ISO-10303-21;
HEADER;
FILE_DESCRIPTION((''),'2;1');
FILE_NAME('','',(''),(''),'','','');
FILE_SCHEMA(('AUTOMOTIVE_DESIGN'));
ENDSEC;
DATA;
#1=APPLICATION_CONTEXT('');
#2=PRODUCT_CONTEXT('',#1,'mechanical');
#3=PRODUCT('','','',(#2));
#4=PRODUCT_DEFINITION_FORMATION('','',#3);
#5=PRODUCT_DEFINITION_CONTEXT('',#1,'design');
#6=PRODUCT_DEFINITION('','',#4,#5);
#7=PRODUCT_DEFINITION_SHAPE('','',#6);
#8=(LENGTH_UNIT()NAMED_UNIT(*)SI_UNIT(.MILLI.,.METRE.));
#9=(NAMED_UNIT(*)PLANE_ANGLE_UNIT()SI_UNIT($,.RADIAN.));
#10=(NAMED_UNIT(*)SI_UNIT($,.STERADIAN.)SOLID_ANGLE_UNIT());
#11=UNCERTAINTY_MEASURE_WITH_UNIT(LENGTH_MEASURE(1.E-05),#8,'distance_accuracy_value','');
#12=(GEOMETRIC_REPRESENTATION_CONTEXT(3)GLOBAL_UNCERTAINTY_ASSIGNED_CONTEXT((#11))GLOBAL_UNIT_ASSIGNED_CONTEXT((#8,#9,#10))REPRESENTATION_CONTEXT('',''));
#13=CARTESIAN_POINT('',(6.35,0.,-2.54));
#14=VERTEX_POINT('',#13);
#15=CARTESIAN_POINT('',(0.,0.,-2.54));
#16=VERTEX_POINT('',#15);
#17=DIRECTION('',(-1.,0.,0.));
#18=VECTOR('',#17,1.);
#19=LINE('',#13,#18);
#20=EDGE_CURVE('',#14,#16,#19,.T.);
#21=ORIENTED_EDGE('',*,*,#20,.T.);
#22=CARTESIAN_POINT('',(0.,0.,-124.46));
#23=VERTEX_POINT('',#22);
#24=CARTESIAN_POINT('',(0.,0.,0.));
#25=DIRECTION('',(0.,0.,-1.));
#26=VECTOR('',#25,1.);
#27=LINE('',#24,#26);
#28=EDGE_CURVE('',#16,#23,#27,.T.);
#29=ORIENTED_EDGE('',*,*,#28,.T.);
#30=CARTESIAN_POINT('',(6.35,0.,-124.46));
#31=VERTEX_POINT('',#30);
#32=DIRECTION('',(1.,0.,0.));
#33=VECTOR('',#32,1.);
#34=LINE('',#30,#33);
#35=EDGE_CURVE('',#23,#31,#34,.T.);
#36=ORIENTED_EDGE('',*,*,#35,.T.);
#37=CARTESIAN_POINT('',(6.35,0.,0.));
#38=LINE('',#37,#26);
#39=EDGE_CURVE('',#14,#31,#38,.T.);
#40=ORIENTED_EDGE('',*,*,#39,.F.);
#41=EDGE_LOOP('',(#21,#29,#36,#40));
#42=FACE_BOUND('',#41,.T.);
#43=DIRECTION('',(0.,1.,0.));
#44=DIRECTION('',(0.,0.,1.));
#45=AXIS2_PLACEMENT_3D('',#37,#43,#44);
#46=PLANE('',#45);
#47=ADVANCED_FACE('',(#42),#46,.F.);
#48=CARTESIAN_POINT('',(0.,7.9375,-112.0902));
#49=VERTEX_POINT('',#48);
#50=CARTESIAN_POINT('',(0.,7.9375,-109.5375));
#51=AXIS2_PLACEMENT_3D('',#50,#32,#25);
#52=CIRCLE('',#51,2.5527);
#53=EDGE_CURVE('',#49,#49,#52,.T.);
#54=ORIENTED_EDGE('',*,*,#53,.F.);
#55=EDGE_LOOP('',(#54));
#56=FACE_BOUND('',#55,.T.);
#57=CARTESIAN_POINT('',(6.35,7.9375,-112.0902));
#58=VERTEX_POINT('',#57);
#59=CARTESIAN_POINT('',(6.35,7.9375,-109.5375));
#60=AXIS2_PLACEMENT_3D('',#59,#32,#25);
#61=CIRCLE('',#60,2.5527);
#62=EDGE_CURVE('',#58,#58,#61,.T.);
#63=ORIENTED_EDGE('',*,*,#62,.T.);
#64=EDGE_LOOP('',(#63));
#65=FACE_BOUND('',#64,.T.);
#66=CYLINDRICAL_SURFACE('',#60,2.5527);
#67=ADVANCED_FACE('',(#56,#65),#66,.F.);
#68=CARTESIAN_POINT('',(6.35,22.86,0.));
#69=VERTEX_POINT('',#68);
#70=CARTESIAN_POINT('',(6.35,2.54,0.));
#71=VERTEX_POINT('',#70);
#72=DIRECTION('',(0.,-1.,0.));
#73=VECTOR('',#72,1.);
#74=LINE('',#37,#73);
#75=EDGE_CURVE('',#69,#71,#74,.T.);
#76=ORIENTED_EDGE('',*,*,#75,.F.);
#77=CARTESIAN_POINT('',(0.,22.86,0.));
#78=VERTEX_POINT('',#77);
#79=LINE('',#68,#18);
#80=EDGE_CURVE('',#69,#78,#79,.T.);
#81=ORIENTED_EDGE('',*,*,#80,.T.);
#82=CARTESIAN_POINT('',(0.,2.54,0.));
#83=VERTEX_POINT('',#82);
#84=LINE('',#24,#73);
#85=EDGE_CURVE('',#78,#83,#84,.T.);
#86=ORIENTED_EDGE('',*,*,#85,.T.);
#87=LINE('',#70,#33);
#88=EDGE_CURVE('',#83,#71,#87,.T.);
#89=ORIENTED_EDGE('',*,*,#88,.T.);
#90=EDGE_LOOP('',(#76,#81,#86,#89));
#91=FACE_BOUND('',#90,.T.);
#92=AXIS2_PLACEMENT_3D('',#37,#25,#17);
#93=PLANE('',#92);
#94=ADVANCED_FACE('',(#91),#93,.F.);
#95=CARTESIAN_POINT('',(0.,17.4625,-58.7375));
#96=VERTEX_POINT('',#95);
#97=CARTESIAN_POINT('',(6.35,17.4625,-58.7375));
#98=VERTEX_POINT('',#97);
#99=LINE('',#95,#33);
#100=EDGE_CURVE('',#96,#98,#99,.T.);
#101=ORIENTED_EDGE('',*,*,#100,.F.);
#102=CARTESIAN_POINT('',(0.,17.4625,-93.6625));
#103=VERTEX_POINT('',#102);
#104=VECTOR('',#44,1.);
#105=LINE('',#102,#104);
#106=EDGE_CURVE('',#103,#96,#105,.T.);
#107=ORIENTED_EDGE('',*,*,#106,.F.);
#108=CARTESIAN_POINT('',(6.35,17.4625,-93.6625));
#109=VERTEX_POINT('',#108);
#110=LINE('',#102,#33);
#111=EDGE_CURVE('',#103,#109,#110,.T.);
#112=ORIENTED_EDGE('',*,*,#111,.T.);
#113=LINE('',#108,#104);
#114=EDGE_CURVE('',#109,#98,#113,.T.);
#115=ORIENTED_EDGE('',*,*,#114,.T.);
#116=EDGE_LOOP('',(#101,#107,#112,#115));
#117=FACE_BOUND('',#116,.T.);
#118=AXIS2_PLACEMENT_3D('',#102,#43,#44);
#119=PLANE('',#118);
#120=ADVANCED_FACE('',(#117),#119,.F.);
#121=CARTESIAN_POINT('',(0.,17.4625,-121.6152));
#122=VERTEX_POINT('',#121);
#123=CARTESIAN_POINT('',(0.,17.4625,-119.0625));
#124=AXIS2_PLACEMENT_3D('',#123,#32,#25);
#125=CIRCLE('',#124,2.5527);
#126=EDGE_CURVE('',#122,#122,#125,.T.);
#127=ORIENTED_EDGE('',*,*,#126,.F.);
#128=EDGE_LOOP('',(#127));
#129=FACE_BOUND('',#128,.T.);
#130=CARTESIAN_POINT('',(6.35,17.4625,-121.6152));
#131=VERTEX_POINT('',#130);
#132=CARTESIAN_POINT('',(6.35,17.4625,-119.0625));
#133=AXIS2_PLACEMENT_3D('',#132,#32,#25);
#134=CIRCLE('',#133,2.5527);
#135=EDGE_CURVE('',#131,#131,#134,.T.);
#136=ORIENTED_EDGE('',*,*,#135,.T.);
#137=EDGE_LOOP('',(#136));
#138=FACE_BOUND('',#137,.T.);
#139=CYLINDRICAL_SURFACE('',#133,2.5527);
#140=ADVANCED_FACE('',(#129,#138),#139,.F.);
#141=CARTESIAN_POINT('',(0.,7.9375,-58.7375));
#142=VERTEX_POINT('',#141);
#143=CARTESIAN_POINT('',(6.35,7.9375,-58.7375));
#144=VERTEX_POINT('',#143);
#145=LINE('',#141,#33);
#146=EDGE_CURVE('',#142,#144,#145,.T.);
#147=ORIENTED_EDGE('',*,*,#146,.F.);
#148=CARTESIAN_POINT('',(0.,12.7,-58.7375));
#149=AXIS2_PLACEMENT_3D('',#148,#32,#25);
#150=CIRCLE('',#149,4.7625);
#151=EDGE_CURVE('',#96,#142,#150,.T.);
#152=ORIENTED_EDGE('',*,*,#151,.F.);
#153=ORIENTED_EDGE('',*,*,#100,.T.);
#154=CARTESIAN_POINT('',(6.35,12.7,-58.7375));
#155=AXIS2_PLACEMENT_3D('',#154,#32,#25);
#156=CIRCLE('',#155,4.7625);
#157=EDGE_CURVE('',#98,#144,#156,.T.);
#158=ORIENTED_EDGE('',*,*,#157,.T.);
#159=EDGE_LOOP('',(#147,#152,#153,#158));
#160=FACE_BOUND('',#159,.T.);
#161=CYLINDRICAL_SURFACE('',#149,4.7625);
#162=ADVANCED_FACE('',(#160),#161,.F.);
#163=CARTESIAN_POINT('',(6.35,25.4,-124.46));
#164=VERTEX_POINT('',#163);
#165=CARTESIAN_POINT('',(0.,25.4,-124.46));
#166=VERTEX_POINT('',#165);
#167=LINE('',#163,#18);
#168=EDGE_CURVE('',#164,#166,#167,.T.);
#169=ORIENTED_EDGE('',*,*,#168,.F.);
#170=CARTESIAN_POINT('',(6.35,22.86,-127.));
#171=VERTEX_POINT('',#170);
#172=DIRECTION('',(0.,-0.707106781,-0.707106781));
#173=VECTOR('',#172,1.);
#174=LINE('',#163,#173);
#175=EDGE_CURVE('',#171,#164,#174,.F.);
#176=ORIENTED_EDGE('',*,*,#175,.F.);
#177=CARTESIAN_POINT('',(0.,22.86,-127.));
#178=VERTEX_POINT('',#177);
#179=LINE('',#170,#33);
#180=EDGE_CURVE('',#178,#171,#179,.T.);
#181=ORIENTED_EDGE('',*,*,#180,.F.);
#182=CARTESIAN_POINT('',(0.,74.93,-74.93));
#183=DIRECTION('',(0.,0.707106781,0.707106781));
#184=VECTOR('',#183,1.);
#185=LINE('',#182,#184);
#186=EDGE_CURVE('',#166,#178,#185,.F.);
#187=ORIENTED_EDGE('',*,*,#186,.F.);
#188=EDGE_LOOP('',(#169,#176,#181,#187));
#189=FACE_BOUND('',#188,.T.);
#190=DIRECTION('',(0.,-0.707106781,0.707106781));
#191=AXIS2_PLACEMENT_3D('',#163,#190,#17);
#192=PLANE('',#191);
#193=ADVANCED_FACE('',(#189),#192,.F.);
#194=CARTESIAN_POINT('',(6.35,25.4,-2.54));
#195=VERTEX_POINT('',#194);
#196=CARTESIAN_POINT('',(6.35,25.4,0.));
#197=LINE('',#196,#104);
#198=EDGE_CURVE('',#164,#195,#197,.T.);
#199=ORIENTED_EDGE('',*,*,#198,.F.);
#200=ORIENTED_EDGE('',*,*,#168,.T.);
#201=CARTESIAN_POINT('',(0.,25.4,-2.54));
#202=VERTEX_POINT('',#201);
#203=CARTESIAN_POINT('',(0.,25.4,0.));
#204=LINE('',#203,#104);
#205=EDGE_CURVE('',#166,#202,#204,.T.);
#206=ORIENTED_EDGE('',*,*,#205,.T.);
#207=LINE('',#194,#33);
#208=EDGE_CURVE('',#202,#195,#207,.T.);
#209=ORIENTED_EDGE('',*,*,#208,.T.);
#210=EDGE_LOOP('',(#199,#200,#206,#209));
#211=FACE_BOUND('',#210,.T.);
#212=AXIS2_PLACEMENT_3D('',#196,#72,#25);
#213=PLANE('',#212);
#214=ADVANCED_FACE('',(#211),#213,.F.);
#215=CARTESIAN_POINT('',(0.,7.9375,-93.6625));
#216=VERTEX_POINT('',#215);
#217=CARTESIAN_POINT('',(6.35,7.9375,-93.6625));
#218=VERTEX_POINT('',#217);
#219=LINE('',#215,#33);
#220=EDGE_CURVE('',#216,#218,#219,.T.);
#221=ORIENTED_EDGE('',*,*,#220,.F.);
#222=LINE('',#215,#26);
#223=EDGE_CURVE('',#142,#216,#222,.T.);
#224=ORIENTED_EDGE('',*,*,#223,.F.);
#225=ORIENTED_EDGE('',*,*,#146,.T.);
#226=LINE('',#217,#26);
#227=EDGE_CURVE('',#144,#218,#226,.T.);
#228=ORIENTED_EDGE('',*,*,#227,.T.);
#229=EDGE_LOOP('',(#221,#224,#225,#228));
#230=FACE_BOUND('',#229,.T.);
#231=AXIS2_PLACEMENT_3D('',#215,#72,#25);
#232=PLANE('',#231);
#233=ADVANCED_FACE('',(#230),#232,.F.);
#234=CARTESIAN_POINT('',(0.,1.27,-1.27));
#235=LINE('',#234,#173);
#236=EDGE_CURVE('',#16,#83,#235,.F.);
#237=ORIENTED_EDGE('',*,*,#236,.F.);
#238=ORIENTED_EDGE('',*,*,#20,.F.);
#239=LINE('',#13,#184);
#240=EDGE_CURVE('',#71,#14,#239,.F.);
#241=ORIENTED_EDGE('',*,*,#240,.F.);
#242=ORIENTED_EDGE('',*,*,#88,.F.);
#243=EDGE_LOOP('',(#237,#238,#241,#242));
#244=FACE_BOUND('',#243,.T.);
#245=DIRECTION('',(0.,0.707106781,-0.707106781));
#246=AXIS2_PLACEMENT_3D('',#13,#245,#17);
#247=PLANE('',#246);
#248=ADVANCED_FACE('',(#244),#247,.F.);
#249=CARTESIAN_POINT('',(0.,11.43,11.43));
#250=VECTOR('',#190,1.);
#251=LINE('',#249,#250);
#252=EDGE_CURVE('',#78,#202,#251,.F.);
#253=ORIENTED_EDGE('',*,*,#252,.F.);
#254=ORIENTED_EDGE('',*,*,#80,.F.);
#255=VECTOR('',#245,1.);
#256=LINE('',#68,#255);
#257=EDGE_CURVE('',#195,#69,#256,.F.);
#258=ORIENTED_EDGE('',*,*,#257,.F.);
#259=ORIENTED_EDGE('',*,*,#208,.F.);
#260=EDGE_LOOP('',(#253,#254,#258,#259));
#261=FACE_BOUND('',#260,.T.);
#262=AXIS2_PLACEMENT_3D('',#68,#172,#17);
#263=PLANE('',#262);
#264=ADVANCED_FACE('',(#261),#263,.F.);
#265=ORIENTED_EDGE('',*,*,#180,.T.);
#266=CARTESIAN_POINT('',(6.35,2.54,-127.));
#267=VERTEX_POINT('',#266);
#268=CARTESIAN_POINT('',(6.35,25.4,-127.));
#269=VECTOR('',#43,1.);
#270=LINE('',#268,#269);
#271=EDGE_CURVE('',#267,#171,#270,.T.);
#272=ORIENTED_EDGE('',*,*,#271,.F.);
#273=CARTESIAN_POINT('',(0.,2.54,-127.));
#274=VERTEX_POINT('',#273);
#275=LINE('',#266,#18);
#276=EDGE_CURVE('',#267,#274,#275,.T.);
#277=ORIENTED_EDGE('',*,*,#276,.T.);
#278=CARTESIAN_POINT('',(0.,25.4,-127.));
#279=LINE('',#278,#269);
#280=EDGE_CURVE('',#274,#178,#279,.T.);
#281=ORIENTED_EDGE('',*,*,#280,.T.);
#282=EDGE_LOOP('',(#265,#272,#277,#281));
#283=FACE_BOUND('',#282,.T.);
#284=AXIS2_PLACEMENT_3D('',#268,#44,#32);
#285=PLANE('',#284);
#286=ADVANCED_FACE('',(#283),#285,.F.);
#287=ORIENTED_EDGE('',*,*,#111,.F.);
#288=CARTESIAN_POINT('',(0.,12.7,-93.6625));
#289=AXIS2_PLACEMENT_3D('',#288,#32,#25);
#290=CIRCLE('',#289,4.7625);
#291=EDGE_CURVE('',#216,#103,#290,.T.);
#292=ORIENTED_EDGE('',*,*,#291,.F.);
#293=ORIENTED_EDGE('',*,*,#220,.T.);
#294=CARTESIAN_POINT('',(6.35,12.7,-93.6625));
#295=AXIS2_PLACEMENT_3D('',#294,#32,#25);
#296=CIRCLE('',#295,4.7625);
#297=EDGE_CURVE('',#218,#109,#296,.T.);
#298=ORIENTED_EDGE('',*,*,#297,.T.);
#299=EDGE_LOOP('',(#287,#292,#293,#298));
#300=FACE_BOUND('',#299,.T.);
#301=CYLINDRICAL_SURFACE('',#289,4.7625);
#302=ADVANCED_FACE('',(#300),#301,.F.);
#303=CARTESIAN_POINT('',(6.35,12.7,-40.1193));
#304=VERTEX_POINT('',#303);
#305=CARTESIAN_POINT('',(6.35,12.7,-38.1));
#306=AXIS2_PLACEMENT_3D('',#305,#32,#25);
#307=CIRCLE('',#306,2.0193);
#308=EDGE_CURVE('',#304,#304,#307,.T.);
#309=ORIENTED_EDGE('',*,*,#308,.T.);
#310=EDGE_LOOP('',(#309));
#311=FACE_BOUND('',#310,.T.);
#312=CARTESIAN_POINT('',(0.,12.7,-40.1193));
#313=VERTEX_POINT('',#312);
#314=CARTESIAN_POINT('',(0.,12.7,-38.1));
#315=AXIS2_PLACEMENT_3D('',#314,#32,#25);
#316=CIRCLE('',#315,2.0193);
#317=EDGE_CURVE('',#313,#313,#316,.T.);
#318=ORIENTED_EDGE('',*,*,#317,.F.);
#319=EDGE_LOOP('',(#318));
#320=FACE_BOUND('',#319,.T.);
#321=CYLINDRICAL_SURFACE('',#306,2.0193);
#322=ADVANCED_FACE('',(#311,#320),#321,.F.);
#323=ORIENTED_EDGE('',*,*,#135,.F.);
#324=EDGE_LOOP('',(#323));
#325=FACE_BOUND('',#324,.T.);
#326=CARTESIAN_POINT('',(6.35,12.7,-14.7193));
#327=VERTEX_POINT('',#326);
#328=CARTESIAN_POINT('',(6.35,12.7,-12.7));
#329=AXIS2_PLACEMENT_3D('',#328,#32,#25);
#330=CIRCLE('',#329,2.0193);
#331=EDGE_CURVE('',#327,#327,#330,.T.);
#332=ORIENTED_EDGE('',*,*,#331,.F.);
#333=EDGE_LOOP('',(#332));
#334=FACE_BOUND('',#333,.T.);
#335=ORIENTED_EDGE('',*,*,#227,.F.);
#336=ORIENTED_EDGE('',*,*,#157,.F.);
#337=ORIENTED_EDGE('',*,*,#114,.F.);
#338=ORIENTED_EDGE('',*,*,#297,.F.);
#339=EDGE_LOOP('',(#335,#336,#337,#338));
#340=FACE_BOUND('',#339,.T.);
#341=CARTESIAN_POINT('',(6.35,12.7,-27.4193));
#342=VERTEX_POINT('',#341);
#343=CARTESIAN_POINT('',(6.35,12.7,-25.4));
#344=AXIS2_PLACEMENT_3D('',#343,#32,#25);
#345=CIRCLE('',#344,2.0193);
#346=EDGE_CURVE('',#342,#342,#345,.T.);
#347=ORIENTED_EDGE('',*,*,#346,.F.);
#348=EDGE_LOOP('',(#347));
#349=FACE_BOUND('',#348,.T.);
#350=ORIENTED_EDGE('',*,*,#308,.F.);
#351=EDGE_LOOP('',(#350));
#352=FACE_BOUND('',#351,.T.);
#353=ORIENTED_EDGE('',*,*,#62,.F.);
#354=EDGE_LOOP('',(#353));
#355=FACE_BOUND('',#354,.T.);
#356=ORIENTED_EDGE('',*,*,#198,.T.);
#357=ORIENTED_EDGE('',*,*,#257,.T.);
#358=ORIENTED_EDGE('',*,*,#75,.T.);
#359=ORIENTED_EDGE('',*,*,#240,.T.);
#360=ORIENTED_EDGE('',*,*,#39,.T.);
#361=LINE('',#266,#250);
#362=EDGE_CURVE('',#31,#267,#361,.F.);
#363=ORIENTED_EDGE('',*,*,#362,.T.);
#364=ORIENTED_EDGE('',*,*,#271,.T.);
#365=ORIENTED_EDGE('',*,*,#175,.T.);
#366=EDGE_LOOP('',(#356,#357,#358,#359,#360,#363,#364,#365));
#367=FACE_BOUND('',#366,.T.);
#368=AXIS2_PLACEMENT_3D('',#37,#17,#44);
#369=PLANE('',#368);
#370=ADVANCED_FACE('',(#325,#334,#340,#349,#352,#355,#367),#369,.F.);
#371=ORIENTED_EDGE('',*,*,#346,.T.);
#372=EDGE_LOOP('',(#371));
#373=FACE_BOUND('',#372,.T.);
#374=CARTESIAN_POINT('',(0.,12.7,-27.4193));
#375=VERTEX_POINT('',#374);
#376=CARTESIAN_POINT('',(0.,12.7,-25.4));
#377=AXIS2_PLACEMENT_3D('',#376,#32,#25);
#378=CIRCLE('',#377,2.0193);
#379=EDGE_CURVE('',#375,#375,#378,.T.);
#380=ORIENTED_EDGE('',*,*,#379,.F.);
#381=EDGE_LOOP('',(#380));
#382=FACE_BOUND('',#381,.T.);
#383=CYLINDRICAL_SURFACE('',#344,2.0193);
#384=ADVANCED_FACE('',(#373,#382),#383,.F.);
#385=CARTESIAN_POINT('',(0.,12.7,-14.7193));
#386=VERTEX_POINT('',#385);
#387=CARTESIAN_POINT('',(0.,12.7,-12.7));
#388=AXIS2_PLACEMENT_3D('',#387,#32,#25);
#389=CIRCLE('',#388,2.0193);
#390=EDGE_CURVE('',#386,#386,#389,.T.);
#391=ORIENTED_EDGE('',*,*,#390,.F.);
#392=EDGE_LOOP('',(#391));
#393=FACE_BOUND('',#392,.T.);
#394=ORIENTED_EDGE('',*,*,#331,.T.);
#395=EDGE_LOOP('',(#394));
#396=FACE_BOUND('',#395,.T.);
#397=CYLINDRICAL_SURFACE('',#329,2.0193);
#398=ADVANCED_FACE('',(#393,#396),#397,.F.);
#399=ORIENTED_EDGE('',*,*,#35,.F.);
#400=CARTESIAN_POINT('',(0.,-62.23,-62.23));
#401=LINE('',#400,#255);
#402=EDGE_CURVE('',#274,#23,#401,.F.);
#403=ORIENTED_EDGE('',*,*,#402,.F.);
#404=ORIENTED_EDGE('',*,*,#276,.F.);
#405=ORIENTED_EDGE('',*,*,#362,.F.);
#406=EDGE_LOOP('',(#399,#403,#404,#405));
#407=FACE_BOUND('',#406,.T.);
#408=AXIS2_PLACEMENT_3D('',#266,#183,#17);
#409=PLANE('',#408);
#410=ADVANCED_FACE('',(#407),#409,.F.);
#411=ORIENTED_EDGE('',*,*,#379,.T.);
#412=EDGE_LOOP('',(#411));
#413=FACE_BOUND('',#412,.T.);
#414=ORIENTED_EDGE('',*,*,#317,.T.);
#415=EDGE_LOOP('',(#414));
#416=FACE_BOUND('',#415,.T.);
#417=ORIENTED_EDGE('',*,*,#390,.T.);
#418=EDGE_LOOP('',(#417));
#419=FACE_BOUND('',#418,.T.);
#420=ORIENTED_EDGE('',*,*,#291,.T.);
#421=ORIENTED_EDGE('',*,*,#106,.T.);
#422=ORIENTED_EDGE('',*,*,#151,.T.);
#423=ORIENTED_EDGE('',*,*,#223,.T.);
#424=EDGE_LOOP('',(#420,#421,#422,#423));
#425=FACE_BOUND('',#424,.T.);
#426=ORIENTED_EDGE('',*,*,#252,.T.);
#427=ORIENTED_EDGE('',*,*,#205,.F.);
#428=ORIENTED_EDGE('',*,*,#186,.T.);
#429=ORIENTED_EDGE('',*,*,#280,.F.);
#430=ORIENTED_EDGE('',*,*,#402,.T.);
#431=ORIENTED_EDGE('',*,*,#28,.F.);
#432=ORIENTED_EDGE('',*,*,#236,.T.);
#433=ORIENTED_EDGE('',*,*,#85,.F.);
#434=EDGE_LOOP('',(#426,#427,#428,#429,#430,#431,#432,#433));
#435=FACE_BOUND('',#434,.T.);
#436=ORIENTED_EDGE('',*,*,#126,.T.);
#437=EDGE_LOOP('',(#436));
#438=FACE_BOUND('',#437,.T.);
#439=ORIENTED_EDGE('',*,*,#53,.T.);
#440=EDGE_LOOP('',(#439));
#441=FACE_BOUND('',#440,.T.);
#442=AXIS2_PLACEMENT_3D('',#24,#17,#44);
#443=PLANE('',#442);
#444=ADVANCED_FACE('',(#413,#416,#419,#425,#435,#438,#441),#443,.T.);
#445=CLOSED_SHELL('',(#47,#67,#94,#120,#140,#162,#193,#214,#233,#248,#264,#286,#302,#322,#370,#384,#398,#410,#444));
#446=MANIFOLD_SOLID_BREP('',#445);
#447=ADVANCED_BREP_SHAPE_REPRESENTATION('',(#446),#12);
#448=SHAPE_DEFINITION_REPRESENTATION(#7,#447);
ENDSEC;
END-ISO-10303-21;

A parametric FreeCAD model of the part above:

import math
import FreeCAD as App
import Part
import Sketcher

V = App.Vector
Q = App.Units.Quantity


def edges_at(feature, points):
    """Names of the edges that pass closest to the given points."""
    edges = feature.Shape.Edges
    near = lambda p: min(range(len(edges)), key=lambda i: edges[i].distToShape(Part.Vertex(*p))[0])
    return sorted({f"Edge{near(p) + 1}" for p in points})

doc = App.newDocument("Part")
body = doc.addObject("PartDesign::Body", "Body")

sketch1 = body.newObject("Sketcher::SketchObject", "Sketch")
sketch1.AttachmentSupport = (doc.getObject("YZ_Plane"), [""])
sketch1.MapMode = "FlatFace"
sketch1.addGeometry([
    Part.LineSegment(V(25.4, 0, 0), V(0, 0, 0)),
    Part.LineSegment(V(0, 0, 0), V(0, -127, 0)),
    Part.LineSegment(V(0, -127, 0), V(25.4, -127, 0)),
    Part.LineSegment(V(25.4, -127, 0), V(25.4, 0, 0)),
], False)
sketch1.addConstraint([
    Sketcher.Constraint("Coincident", 0, 2, 1, 1),
    Sketcher.Constraint("Coincident", 1, 2, 2, 1),
    Sketcher.Constraint("Coincident", 2, 2, 3, 1),
    Sketcher.Constraint("Coincident", 3, 2, 0, 1),
    Sketcher.Constraint("Horizontal", 0),
    Sketcher.Constraint("Vertical", 1),
    Sketcher.Constraint("Horizontal", 2),
    Sketcher.Constraint("Vertical", 3),
    Sketcher.Constraint("Coincident", 0, 2, -1, 1),
    Sketcher.Constraint("DistanceX", 0, 2, 0, 1, Q("1 in")),
    Sketcher.Constraint("DistanceY", 1, 2, 1, 1, Q("5 in")),
])
pad1 = body.newObject("PartDesign::Pad", "Pad")
pad1.Profile = sketch1
pad1.Length = Q("0.25 in")

sketch2 = body.newObject("Sketcher::SketchObject", "Sketch001")
sketch2.AttachmentSupport = (doc.getObject("YZ_Plane"), [""])
sketch2.MapMode = "FlatFace"
sketch2.AttachmentOffset = App.Placement(V(0, 0, 0.25 * 25.4), App.Rotation())
sketch2.addGeometry([
    Part.Circle(V(12.7, -12.7, 0), V(0, 0, 1), 2.0193),
    Part.Circle(V(12.7, -25.4, 0), V(0, 0, 1), 2.0193),
    Part.Circle(V(12.7, -38.1, 0), V(0, 0, 1), 2.0193),
], False)
sketch2.addConstraint([
    Sketcher.Constraint("Equal", 0, 1),
    Sketcher.Constraint("Equal", 1, 2),
    Sketcher.Constraint("Vertical", 0, 3, 1, 3),
    Sketcher.Constraint("Vertical", 1, 3, 2, 3),
    Sketcher.Constraint("Diameter", 0, Q("0.159 in")),
    Sketcher.Constraint("DistanceY", 1, 3, -1, 1, Q("1 in")),
    Sketcher.Constraint("DistanceY", 2, 3, 0, 3, Q("1 in")),
    Sketcher.Constraint("DistanceX", -1, 1, 0, 3, Q("0.5 in")),
    Sketcher.Constraint("DistanceY", 0, 3, -1, 1, Q("0.5 in")),
])
doc.recompute()
hole = body.newObject("PartDesign::Hole", "Hole")
hole.Profile = sketch2
hole.ThreadType = "None"
hole.Diameter = Q("0.159 in")
hole.DepthType = "ThroughAll"

sketch3 = body.newObject("Sketcher::SketchObject", "Sketch002")
sketch3.AttachmentSupport = (doc.getObject("YZ_Plane"), [""])
sketch3.MapMode = "FlatFace"
sketch3.AttachmentOffset = App.Placement(V(0, 0, 0.25 * 25.4), App.Rotation())
sketch3.addGeometry([
    Part.Circle(V(17.4625, -119.0625, 0), V(0, 0, 1), 2.5527),
    Part.Circle(V(7.9375, -109.5375, 0), V(0, 0, 1), 2.5527),
], False)
sketch3.addConstraint([
    Sketcher.Constraint("Equal", 0, 1),
    Sketcher.Constraint("Diameter", 0, Q("0.201 in")),
    Sketcher.Constraint("DistanceX", -1, 1, 0, 3, Q("0.6875 in")),
    Sketcher.Constraint("DistanceY", 0, 3, -1, 1, Q("4.6875 in")),
    Sketcher.Constraint("DistanceX", -1, 1, 1, 3, Q("0.3125 in")),
    Sketcher.Constraint("DistanceY", 1, 3, -1, 1, Q("4.3125 in")),
])
doc.recompute()
hole2 = body.newObject("PartDesign::Hole", "Hole001")
hole2.Profile = sketch3
hole2.ThreadType = "None"
hole2.Diameter = Q("0.201 in")
hole2.DepthType = "ThroughAll"
doc.recompute()

chamfer = body.newObject("PartDesign::Chamfer", "Chamfer")
chamfer.Base = (hole2, edges_at(hole2, [
    (3.175, 25.4, 0),
    (3.175, 25.4, -127),
    (3.175, 0, -127),
    (3.175, 0, 0),
]))
chamfer.Size = Q("0.1 in")

sketch4 = body.newObject("Sketcher::SketchObject", "Sketch003")
sketch4.AttachmentSupport = (doc.getObject("YZ_Plane"), [""])
sketch4.MapMode = "FlatFace"
sketch4.AttachmentOffset = App.Placement(V(0, 0, 0.25 * 25.4), App.Rotation())
sketch4.addGeometry([
    Part.LineSegment(V(7.9375, -58.7375, 0), V(7.9375, -93.6625, 0)),
    Part.ArcOfCircle(Part.Circle(V(12.7, -93.6625, 0), V(0, 0, 1), 4.7625), math.radians(180), math.radians(360)),
    Part.LineSegment(V(17.4625, -93.6625, 0), V(17.4625, -58.7375, 0)),
    Part.ArcOfCircle(Part.Circle(V(12.7, -58.7375, 0), V(0, 0, 1), 4.7625), math.radians(0), math.radians(180)),
], False)
sketch4.addConstraint([
    Sketcher.Constraint("Tangent", 0, 2, 1, 1),
    Sketcher.Constraint("Tangent", 1, 2, 2, 1),
    Sketcher.Constraint("Tangent", 2, 2, 3, 1),
    Sketcher.Constraint("Tangent", 3, 2, 0, 1),
    Sketcher.Constraint("Vertical", 0),
    Sketcher.Constraint("Vertical", 2),
    Sketcher.Constraint("Radius", 1, Q("0.1875 in")),
    Sketcher.Constraint("DistanceX", -1, 1, 1, 3, Q("0.5 in")),
    Sketcher.Constraint("DistanceY", 0, 2, 0, 1, Q("1.375 in")),
    Sketcher.Constraint("DistanceY", 1, 3, -1, 1, Q("3.6875 in")),
])
pocket1 = body.newObject("PartDesign::Pocket", "Pocket")
pocket1.Profile = sketch4
pocket1.Type = "ThroughAll"

doc.recompute()
